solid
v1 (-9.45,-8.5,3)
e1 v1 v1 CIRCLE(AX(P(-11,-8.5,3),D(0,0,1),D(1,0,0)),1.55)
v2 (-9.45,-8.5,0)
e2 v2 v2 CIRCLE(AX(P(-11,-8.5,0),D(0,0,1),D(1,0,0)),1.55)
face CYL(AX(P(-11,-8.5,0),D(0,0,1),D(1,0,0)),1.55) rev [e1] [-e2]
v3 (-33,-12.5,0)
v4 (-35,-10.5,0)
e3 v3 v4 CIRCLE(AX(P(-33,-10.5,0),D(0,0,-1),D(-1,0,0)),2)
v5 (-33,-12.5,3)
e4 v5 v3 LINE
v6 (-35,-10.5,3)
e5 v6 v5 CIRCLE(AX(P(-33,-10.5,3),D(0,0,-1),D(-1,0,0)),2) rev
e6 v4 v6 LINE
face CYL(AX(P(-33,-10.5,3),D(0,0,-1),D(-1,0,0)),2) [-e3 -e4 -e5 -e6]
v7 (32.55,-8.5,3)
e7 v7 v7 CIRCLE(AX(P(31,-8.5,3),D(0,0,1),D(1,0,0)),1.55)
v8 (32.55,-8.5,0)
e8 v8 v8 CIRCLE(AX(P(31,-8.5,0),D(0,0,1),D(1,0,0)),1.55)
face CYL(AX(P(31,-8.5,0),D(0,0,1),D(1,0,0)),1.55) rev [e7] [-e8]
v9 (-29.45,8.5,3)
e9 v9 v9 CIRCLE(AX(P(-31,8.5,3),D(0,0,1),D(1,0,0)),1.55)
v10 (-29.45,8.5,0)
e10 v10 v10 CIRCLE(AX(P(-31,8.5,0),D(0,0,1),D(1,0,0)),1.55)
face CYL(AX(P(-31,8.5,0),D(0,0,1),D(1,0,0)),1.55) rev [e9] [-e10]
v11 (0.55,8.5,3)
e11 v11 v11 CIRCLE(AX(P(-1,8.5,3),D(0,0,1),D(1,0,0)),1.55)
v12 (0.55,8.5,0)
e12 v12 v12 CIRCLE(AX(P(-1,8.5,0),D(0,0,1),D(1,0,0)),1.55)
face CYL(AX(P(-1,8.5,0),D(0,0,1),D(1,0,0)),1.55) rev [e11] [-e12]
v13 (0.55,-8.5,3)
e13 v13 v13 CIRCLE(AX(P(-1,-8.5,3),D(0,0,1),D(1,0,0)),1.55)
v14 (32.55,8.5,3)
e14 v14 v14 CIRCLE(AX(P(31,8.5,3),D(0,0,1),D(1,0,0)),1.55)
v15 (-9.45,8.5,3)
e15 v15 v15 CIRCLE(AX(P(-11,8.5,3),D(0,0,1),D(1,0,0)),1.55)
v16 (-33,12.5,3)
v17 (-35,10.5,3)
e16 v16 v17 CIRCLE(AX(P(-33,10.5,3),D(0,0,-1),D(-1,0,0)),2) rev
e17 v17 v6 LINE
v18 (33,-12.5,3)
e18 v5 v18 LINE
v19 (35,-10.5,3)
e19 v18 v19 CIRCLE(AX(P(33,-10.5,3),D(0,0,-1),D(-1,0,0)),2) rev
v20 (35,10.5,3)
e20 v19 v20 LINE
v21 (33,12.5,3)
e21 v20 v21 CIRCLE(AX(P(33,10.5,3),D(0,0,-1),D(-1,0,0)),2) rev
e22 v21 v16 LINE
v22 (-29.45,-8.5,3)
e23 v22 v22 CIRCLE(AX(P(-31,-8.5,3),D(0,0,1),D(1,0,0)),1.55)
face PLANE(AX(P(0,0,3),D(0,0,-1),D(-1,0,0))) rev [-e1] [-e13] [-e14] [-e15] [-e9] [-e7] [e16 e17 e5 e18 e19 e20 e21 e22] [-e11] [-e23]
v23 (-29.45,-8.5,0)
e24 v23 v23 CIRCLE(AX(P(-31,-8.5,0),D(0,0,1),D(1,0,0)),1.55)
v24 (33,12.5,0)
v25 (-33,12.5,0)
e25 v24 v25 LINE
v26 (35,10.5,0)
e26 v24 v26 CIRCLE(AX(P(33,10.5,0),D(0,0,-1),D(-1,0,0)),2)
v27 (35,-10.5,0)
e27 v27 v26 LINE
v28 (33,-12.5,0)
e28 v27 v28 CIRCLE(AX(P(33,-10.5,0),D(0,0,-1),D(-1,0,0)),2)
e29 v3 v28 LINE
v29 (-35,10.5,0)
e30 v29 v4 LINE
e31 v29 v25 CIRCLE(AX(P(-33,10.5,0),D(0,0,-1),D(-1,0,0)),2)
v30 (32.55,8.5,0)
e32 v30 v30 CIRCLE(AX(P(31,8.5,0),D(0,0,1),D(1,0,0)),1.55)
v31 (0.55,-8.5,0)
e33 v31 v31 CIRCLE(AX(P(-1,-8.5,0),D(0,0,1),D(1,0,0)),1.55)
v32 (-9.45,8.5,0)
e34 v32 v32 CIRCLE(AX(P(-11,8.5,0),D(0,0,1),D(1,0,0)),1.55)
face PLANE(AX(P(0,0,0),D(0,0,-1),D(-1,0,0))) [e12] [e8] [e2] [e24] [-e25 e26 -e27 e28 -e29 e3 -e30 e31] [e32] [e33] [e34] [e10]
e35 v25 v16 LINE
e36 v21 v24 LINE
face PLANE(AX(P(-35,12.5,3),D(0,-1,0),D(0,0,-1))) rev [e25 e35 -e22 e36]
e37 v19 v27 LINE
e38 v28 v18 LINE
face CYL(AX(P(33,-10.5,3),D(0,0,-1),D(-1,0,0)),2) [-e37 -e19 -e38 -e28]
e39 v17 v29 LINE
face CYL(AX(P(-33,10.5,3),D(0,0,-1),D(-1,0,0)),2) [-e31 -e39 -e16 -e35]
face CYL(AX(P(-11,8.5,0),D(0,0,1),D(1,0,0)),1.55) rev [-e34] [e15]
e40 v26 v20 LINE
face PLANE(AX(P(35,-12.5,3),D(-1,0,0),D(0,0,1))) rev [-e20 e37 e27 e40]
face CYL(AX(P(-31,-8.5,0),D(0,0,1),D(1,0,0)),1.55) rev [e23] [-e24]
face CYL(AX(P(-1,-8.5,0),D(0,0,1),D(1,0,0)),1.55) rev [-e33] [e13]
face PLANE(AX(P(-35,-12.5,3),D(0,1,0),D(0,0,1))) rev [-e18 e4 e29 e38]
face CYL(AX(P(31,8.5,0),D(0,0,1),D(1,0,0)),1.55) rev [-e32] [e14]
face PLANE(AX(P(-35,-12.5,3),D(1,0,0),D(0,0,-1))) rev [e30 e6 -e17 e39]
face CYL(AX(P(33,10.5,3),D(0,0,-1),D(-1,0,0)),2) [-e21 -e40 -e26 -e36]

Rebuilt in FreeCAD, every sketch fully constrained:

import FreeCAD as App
import Part
import Sketcher

V = App.Vector
Q = App.Units.Quantity


def edges_at(feature, points):
    """Names of the edges that pass closest to the given points."""
    edges = feature.Shape.Edges
    near = lambda p: min(range(len(edges)), key=lambda i: edges[i].distToShape(Part.Vertex(*p))[0])
    return sorted({f"Edge{near(p) + 1}" for p in points})


def add_polygon(sketch, points):
    """Adds a closed chain of lines whose ends are joined by coincident constraints."""
    first, n = sketch.GeometryCount, len(points)
    for a, b in zip(points, points[1:] + points[:1]):
        sketch.addGeometry(Part.LineSegment(App.Vector(*a, 0), App.Vector(*b, 0)), False)
    for i in range(n):
        sketch.addConstraint(Sketcher.Constraint("Coincident", first + i, 2, first + (i + 1) % n, 1))

doc = App.newDocument("Part")
body = doc.addObject("PartDesign::Body", "Body")

# Sketch on XY plane
sketch1 = doc.addObject("Sketcher::SketchObject", "Sketch")
body.addObject(sketch1)
sketch1.AttachmentSupport = (doc.XY_Plane, [""])
sketch1.MapMode = "FlatFace"
add_polygon(sketch1, [(-35, 12.5), (-35, -12.5), (35, -12.5), (35, 12.5)])  # lines 0-3
sketch1.addConstraint([
    Sketcher.Constraint("Vertical", 0),
    Sketcher.Constraint("Horizontal", 1),
    Sketcher.Constraint("Vertical", 2),
    Sketcher.Constraint("Horizontal", 3),
    Sketcher.Constraint("Symmetric", 0, 2, 2, 2, -1, 1),
    Sketcher.Constraint("DistanceX", 1, 1, 1, 2, Q("70 mm")),
    Sketcher.Constraint("DistanceY", 0, 2, 0, 1, Q("25 mm")),
])
pad1 = doc.addObject("PartDesign::Pad", "Pad")
body.addObject(pad1)
pad1.Profile = sketch1
pad1.Length = 3

# Sketch on XY plane
sketch2 = doc.addObject("Sketcher::SketchObject", "Sketch001")
body.addObject(sketch2)
sketch2.AttachmentSupport = (doc.XY_Plane, [""])
sketch2.MapMode = "FlatFace"
sketch2.AttachmentOffset = App.Placement(V(0, 0, 3), App.Rotation())
sketch2.addGeometry([
    Part.Circle(V(31, 8.5, 0), V(0, 0, 1), 1.55),  # 0
    Part.Circle(V(-1, 8.5, 0), V(0, 0, 1), 1.55),  # 1
    Part.Circle(V(-1, -8.5, 0), V(0, 0, 1), 1.55),  # 2
    Part.Circle(V(31, -8.5, 0), V(0, 0, 1), 1.55),  # 3
    Part.Circle(V(-11, -8.5, 0), V(0, 0, 1), 1.55),  # 4
    Part.Circle(V(-31, -8.5, 0), V(0, 0, 1), 1.55),  # 5
    Part.Circle(V(-31, 8.5, 0), V(0, 0, 1), 1.55),  # 6
    Part.Circle(V(-11, 8.5, 0), V(0, 0, 1), 1.55),  # 7
], False)
sketch2.addConstraint([
    Sketcher.Constraint("Equal", 0, 1),
    Sketcher.Constraint("Equal", 1, 2),
    Sketcher.Constraint("Equal", 2, 3),
    Sketcher.Constraint("Equal", 3, 4),
    Sketcher.Constraint("Equal", 4, 5),
    Sketcher.Constraint("Equal", 5, 6),
    Sketcher.Constraint("Equal", 6, 7),
    Sketcher.Constraint("Symmetric", 0, 3, 5, 3, -1, 1),
    Sketcher.Constraint("Symmetric", 3, 3, 6, 3, -1, 1),
    Sketcher.Constraint("Symmetric", 3, 3, 5, 3, -2),
    Sketcher.Constraint("Symmetric", 1, 3, 2, 3, -1),
    Sketcher.Constraint("Symmetric", 4, 3, 7, 3, -1),
    Sketcher.Constraint("Horizontal", 0, 3, 1, 3),
    Sketcher.Constraint("Horizontal", 3, 3, 4, 3),
    Sketcher.Constraint("Diameter", 0, Q("3.1 mm")),
    Sketcher.Constraint("DistanceX", -1, 1, 0, 3, Q("31 mm")),
    Sketcher.Constraint("DistanceX", 1, 3, -1, 1, Q("1 mm")),
    Sketcher.Constraint("DistanceX", 4, 3, -1, 1, Q("11 mm")),
    Sketcher.Constraint("DistanceY", 2, 3, 1, 3, Q("17 mm")),
])
pocket1 = doc.addObject("PartDesign::Pocket", "Pocket")
body.addObject(pocket1)
pocket1.Profile = sketch2
pocket1.Length = 3
doc.recompute()

fillet = doc.addObject("PartDesign::Fillet", "Fillet")
body.addObject(fillet)
fillet.Base = (pocket1, edges_at(pocket1, [
    (35, -12.5, 1.5),
    (-35, -12.5, 1.5),
    (-35, 12.5, 1.5),
    (35, 12.5, 1.5),
]))
fillet.Radius = 2

doc.recompute()
